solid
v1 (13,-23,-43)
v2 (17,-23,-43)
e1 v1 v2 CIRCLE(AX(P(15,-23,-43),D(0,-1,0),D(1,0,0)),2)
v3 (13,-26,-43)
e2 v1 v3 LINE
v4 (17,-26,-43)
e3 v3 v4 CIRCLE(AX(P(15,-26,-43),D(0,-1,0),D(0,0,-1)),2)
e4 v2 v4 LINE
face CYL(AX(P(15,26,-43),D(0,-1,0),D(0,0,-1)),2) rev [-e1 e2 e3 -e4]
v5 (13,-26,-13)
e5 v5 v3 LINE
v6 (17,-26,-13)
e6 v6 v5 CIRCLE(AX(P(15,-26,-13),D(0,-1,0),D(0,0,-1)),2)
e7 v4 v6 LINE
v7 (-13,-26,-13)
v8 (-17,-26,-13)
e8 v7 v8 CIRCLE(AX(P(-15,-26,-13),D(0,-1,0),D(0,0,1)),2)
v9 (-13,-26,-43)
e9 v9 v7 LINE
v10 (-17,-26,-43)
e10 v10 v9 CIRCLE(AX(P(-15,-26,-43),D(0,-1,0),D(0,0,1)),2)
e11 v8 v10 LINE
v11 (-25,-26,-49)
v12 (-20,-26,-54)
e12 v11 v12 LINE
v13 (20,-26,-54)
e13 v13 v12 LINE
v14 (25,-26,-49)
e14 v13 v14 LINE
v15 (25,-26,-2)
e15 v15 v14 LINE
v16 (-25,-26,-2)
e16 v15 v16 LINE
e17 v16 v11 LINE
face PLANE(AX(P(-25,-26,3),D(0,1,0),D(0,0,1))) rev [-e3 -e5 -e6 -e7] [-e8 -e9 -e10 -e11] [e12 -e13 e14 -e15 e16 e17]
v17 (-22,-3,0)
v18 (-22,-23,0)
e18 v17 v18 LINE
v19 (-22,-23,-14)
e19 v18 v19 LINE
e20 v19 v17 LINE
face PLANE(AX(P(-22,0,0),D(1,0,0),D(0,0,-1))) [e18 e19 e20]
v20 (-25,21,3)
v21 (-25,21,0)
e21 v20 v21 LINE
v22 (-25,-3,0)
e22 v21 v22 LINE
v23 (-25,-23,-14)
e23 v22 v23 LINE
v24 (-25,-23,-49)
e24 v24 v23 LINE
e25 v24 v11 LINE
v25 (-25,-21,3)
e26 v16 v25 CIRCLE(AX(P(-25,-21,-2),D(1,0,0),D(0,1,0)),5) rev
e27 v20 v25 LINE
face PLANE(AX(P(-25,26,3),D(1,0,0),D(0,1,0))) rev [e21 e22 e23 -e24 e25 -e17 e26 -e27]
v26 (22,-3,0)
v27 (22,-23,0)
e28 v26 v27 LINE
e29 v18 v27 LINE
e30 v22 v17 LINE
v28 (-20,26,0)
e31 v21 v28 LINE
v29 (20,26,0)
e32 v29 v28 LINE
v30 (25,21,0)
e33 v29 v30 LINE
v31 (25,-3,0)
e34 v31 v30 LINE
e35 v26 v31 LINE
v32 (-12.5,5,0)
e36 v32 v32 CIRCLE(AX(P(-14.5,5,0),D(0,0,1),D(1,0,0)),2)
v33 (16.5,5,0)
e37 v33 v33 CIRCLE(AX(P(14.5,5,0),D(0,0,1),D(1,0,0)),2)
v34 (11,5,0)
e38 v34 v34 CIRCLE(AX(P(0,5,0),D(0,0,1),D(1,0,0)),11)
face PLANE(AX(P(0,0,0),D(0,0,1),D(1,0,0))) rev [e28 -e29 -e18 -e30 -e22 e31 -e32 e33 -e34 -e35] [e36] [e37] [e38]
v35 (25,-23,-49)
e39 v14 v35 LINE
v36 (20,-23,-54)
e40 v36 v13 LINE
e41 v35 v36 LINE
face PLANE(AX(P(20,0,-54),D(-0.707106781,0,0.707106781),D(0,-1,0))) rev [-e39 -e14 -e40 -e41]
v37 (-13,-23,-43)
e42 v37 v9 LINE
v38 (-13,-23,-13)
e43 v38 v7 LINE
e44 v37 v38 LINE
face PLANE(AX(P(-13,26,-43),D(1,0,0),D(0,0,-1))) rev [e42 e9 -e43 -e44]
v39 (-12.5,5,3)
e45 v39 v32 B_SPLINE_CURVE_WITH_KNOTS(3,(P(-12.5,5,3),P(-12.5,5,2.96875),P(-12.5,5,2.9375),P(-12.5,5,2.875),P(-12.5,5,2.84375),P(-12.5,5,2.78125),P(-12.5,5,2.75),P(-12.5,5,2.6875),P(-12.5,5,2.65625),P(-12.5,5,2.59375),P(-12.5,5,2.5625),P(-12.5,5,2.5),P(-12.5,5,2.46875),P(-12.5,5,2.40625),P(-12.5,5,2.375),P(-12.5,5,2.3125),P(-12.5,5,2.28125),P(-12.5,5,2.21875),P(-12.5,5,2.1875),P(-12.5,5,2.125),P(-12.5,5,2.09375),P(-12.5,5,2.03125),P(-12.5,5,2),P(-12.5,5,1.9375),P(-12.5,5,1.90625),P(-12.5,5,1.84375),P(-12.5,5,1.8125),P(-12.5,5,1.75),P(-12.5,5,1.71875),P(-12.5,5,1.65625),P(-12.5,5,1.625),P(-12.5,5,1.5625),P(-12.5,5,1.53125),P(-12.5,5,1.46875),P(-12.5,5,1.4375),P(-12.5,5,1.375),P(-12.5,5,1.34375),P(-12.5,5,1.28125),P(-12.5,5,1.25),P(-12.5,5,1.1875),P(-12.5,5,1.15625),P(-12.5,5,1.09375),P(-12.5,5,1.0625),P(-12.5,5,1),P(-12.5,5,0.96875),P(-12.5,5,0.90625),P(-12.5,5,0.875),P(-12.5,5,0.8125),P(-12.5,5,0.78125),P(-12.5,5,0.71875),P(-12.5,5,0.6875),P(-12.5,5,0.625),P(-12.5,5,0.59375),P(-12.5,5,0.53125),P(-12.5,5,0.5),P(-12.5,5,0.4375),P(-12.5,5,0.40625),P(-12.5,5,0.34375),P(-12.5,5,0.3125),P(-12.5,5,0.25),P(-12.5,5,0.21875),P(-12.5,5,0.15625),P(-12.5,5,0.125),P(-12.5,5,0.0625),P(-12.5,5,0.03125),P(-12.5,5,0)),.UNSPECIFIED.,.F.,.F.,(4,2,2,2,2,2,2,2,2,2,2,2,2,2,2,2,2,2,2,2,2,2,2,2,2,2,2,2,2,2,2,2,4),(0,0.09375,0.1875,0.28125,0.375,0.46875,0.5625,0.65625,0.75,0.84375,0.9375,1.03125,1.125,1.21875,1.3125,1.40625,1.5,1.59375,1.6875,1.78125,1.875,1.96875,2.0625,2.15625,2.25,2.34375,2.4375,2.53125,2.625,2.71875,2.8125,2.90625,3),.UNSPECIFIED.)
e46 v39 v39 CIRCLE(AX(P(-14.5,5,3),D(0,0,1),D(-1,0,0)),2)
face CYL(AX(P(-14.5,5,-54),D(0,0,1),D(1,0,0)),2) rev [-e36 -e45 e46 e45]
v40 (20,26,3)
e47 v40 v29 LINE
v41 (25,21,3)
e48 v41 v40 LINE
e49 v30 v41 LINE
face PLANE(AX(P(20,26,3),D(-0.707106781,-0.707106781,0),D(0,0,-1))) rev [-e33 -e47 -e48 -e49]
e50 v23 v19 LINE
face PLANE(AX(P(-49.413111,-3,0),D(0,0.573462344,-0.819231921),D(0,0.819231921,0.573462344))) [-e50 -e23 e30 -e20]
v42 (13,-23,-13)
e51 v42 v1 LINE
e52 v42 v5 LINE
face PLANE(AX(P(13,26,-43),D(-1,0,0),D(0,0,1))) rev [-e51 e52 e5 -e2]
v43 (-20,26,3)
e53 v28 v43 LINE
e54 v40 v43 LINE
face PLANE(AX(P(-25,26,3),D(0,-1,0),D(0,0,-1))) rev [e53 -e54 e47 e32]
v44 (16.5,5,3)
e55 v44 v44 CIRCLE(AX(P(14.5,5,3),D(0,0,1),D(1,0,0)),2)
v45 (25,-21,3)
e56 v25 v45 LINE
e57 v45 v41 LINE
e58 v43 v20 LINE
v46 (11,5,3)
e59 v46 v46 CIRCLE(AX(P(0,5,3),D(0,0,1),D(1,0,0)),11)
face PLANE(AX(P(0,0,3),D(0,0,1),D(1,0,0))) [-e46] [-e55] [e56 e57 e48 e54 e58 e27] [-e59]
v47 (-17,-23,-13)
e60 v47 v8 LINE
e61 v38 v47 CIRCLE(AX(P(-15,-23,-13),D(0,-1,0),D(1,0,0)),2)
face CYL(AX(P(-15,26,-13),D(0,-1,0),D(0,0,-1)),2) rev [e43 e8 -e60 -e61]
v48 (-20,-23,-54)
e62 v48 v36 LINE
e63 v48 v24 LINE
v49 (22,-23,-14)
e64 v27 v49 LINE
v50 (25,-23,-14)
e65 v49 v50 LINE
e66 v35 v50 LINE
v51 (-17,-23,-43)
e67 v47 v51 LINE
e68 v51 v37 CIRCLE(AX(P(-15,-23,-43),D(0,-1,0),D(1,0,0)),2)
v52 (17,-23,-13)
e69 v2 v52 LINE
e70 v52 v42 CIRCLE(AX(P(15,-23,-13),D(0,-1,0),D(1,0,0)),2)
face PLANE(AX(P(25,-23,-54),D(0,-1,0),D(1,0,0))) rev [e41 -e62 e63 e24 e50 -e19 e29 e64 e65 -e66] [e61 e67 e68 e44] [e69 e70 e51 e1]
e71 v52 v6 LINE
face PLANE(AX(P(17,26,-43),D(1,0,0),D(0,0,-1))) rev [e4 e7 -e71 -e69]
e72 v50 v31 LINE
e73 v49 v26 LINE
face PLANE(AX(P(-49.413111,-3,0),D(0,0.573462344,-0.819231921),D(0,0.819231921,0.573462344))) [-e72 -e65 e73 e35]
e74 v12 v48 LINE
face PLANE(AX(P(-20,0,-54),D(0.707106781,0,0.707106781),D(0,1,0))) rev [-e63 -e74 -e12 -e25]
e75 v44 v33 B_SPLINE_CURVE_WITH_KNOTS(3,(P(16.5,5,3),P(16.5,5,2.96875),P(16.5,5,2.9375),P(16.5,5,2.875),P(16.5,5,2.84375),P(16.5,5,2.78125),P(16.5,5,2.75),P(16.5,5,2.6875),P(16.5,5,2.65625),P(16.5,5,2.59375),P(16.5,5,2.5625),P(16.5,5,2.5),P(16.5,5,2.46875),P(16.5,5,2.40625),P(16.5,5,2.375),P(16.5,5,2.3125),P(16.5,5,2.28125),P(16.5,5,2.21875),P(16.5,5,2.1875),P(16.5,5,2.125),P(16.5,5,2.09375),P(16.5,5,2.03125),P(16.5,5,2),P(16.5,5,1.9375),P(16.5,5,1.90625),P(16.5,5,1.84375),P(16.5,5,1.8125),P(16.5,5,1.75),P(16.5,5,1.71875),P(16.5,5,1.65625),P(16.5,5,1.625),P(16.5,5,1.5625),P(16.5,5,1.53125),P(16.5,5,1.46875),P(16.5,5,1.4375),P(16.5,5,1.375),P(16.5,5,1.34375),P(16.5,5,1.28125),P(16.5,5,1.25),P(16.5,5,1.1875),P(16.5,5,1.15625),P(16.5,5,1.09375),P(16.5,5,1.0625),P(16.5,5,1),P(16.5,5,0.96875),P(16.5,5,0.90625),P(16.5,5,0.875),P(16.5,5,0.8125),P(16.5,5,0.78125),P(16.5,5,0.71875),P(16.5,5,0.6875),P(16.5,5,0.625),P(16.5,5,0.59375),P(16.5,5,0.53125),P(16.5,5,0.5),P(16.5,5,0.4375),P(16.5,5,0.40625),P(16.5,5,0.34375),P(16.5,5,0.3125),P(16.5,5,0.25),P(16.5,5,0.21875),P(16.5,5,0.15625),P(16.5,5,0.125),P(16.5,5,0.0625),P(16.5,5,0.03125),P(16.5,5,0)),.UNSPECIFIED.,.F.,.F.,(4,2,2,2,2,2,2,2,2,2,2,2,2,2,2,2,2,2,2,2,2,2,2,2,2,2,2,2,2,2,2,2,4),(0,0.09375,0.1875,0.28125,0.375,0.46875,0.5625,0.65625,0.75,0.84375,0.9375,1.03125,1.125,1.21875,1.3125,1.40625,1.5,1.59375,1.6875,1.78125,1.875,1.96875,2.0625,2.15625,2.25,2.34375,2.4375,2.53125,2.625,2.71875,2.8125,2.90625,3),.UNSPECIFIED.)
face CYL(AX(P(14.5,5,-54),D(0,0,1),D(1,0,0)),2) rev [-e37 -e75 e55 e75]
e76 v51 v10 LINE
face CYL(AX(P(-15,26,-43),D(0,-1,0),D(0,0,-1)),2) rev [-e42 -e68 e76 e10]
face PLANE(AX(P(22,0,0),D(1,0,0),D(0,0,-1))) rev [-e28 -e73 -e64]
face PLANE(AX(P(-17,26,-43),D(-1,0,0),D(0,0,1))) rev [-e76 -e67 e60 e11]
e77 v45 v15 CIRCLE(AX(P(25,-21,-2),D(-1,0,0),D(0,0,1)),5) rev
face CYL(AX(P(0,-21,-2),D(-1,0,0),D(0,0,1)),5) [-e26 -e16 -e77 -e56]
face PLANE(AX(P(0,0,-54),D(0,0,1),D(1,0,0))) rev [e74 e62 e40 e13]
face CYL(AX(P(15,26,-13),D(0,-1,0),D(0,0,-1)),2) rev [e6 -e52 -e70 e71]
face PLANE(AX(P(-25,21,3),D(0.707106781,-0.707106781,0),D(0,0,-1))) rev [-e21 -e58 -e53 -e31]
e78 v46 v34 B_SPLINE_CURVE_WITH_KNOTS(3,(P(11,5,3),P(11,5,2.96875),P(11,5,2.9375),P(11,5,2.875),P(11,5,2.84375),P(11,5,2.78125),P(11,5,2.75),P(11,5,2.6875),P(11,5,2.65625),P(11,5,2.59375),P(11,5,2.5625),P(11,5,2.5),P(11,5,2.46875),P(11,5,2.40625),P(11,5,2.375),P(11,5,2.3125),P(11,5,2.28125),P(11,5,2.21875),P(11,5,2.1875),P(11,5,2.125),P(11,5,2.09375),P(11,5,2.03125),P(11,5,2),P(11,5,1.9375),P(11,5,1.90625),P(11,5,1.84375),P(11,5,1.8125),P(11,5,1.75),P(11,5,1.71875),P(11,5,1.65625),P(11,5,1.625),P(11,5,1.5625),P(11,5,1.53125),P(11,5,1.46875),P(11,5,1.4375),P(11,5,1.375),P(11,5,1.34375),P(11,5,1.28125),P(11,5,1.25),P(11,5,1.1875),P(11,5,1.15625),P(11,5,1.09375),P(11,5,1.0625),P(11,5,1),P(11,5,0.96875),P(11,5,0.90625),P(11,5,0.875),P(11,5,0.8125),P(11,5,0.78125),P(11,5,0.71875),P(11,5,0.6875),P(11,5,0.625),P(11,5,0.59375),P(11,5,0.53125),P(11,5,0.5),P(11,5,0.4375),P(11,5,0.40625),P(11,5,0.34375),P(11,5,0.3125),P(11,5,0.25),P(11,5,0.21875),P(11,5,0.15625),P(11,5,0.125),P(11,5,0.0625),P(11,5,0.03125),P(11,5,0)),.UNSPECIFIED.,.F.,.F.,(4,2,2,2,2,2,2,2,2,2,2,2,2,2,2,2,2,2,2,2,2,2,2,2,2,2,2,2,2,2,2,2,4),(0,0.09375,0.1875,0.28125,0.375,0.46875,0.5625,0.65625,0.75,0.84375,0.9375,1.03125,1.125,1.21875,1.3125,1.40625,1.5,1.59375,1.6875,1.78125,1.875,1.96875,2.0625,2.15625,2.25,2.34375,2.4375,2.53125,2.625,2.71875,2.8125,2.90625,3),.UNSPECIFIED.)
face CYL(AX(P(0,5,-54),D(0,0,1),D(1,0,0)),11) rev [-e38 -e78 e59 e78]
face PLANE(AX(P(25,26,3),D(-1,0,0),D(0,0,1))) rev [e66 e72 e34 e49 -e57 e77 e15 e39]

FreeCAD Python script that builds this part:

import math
import FreeCAD as App
import Part
import Sketcher

V = App.Vector


def edges_at(feature, points):
    """Names of the edges that pass closest to the given points."""
    edges = feature.Shape.Edges
    near = lambda p: min(range(len(edges)), key=lambda i: edges[i].distToShape(Part.Vertex(*p))[0])
    return sorted({f"Edge{near(p) + 1}" for p in points})


def add_polygon(sketch, points):
    """Adds a closed chain of lines whose ends are joined by coincident constraints."""
    first, n = sketch.GeometryCount, len(points)
    for a, b in zip(points, points[1:] + points[:1]):
        sketch.addGeometry(Part.LineSegment(App.Vector(*a, 0), App.Vector(*b, 0)), False)
    for i in range(n):
        sketch.addConstraint(Sketcher.Constraint("Coincident", first + i, 2, first + (i + 1) % n, 1))

doc = App.newDocument("Part")
body = doc.addObject("PartDesign::Body", "Body")

# Sketch on XY plane
sketch1 = body.newObject("Sketcher::SketchObject", "Sketch")
sketch1.AttachmentSupport = (doc.getObject("XY_Plane"), [""])
sketch1.MapMode = "FlatFace"
add_polygon(sketch1, [(-25, 26), (-25, -26), (25, -26), (25, 26)])  # lines 0-3
sketch1.addConstraint([
    Sketcher.Constraint("Vertical", 0),
    Sketcher.Constraint("Horizontal", 1),
    Sketcher.Constraint("Vertical", 2),
    Sketcher.Constraint("Horizontal", 3),
    Sketcher.Constraint("Symmetric", 0, 2, 2, 2, -1, 1),
    Sketcher.Constraint("DistanceX", 1, 1, 1, 2, 50.0),
    Sketcher.Constraint("DistanceY", 0, 2, 0, 1, 52.0),
])
pad1 = body.newObject("PartDesign::Pad", "Pad")
pad1.Profile = sketch1
pad1.Length = 3

# Sketch on XY plane
sketch2 = body.newObject("Sketcher::SketchObject", "Sketch001")
sketch2.AttachmentSupport = (doc.getObject("XY_Plane"), [""])
sketch2.MapMode = "FlatFace"
add_polygon(sketch2, [(25, -23), (25, -26), (-25, -26), (-25, -23)])  # lines 0-3
sketch2.addConstraint([
    Sketcher.Constraint("Vertical", 0),
    Sketcher.Constraint("Horizontal", 1),
    Sketcher.Constraint("Vertical", 2),
    Sketcher.Constraint("Horizontal", 3),
    Sketcher.Constraint("DistanceX", 1, 2, 1, 1, 50.0),
    Sketcher.Constraint("DistanceY", 0, 2, 0, 1, 3.0),
    Sketcher.Constraint("DistanceX", -1, 1, 0, 2, 25.0),
    Sketcher.Constraint("DistanceY", 0, 2, -1, 1, 26.0),
])
pad2 = body.newObject("PartDesign::Pad", "Pad001")
pad2.Profile = sketch2
pad2.Length = 54
pad2.Reversed = True

# Sketch on XY plane
sketch3 = body.newObject("Sketcher::SketchObject", "Sketch002")
sketch3.AttachmentSupport = (doc.getObject("XY_Plane"), [""])
sketch3.MapMode = "FlatFace"
sketch3.AttachmentOffset = App.Placement(V(0, 0, 3), App.Rotation())
sketch3.addGeometry([
    Part.Circle(V(0, 5, 0), V(0, 0, 1), 11),
    Part.Circle(V(14.5, 5, 0), V(0, 0, 1), 2),
    Part.Circle(V(-14.5, 5, 0), V(0, 0, 1), 2),
], False)
sketch3.addConstraint([
    Sketcher.Constraint("Equal", 1, 2),
    Sketcher.Constraint("Symmetric", 1, 3, 2, 3, -2),
    Sketcher.Constraint("PointOnObject", 0, 3, -2),
    Sketcher.Constraint("Horizontal", 0, 3, 1, 3),
    Sketcher.Constraint("Diameter", 0, 22.0),
    Sketcher.Constraint("Diameter", 1, 4.0),
    Sketcher.Constraint("DistanceY", -1, 1, 0, 3, 5.0),
    Sketcher.Constraint("DistanceX", 2, 3, 1, 3, 29.0),
])
pocket1 = body.newObject("PartDesign::Pocket", "Pocket")
pocket1.Profile = sketch3
pocket1.Type = "ThroughAll"
doc.recompute()

chamfer = body.newObject("PartDesign::Chamfer", "Chamfer")
chamfer.Base = (pocket1, edges_at(pocket1, [(-25, 26, 1.5), (25, 26, 1.5)]))
chamfer.Size = 5
doc.recompute()

chamfer2 = body.newObject("PartDesign::Chamfer", "Chamfer001")
chamfer2.Base = (chamfer, edges_at(chamfer, [(25, -24.5, -54), (-25, -24.5, -54)]))
chamfer2.Size = 5

# Sketch on XZ plane
sketch4 = body.newObject("Sketcher::SketchObject", "Sketch003")
sketch4.AttachmentSupport = (doc.getObject("XZ_Plane"), [""])
sketch4.MapMode = "FlatFace"
sketch4.AttachmentOffset = App.Placement(V(0, 0, 26), App.Rotation())
sketch4.addGeometry([
    Part.LineSegment(V(13, -13, 0), V(13, -43, 0)),  # 0
    Part.ArcOfCircle(Part.Circle(V(15, -43, 0), V(0, 0, 1), 2), math.radians(180), math.radians(360)),  # 1
    Part.LineSegment(V(17, -43, 0), V(17, -13, 0)),  # 2
    Part.ArcOfCircle(Part.Circle(V(15, -13, 0), V(0, 0, 1), 2), math.radians(0), math.radians(180)),  # 3
    Part.LineSegment(V(-13, -43, 0), V(-13, -13, 0)),  # 4
    Part.ArcOfCircle(Part.Circle(V(-15, -13, 0), V(0, 0, 1), 2), math.radians(0), math.radians(180)),  # 5
    Part.LineSegment(V(-17, -13, 0), V(-17, -43, 0)),  # 6
    Part.ArcOfCircle(Part.Circle(V(-15, -43, 0), V(0, 0, 1), 2), math.radians(180), math.radians(360)),  # 7
], False)
sketch4.addConstraint([
    Sketcher.Constraint("Tangent", 0, 2, 1, 1),
    Sketcher.Constraint("Tangent", 1, 2, 2, 1),
    Sketcher.Constraint("Tangent", 2, 2, 3, 1),
    Sketcher.Constraint("Tangent", 3, 2, 0, 1),
    Sketcher.Constraint("Tangent", 4, 2, 5, 1),
    Sketcher.Constraint("Tangent", 5, 2, 6, 1),
    Sketcher.Constraint("Tangent", 6, 2, 7, 1),
    Sketcher.Constraint("Tangent", 7, 2, 4, 1),
    Sketcher.Constraint("Vertical", 0),
    Sketcher.Constraint("Vertical", 2),
    Sketcher.Constraint("Vertical", 4),
    Sketcher.Constraint("Vertical", 6),
    Sketcher.Constraint("Equal", 3, 5),
    Sketcher.Constraint("Symmetric", 3, 3, 5, 3, -2),
    Sketcher.Constraint("Horizontal", 1, 3, 7, 3),
    Sketcher.Constraint("Radius", 1, 2.0),
    Sketcher.Constraint("DistanceY", 0, 2, 0, 1, 30.0),
    Sketcher.Constraint("DistanceX", -1, 1, 1, 3, 15.0),
    Sketcher.Constraint("DistanceY", 1, 3, -1, 1, 43.0),
])
pocket2 = body.newObject("PartDesign::Pocket", "Pocket001")
pocket2.Profile = sketch4
pocket2.Type = "ThroughAll"

# Sketch on YZ plane
sketch5 = body.newObject("Sketcher::SketchObject", "Sketch004")
sketch5.AttachmentSupport = (doc.getObject("YZ_Plane"), [""])
sketch5.MapMode = "FlatFace"
sketch5.AttachmentOffset = App.Placement(V(0, 0, -25), App.Rotation())
add_polygon(sketch5, [(-3, 0), (-23, 0), (-23, -14)])  # lines 0-2
sketch5.addConstraint([
    Sketcher.Constraint("Horizontal", 0),
    Sketcher.Constraint("Vertical", 1),
    Sketcher.Constraint("PointOnObject", 0, 2, -1),
    Sketcher.Constraint("DistanceX", 0, 2, 0, 1, 20.0),
    Sketcher.Constraint("DistanceY", 1, 2, 1, 1, 14.0),
    Sketcher.Constraint("DistanceX", 0, 2, -1, 1, 23.0),
])
pad3 = body.newObject("PartDesign::Pad", "Pad002")
pad3.Profile = sketch5
pad3.Length = 50

# Sketch on YZ plane
sketch6 = body.newObject("Sketcher::SketchObject", "Sketch005")
sketch6.AttachmentSupport = (doc.getObject("YZ_Plane"), [""])
sketch6.MapMode = "FlatFace"
sketch6.AttachmentOffset = App.Placement(V(0, 0, 22), App.Rotation())
add_polygon(sketch6, [(-23, -14), (-3, 0), (-23, 0)])  # lines 0-2
sketch6.addConstraint([
    Sketcher.Constraint("Horizontal", 1),
    Sketcher.Constraint("Vertical", 2),
    Sketcher.Constraint("PointOnObject", 0, 2, -1),
    Sketcher.Constraint("DistanceX", 1, 2, 1, 1, 20.0),
    Sketcher.Constraint("DistanceY", 2, 2, 2, 1, 14.0),
    Sketcher.Constraint("DistanceX", 0, 2, -1, 1, 3.0),
])
pocket3 = body.newObject("PartDesign::Pocket", "Pocket002")
pocket3.Profile = sketch6
pocket3.Length = 44
doc.recompute()

fillet = body.newObject("PartDesign::Fillet", "Fillet")
fillet.Base = (pocket3, edges_at(pocket3, [(0, -26, 3)]))
fillet.Radius = 5

doc.recompute()
